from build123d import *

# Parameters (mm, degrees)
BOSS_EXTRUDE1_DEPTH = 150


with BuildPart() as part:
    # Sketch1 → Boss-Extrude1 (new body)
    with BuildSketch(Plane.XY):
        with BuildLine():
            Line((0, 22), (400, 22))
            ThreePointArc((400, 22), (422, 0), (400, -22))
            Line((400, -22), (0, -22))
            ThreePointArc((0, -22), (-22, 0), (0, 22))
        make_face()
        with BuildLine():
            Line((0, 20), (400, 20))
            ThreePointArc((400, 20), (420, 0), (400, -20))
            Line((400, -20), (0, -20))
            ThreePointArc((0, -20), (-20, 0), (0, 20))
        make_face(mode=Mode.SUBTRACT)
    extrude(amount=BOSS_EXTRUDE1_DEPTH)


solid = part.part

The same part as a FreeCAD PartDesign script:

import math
import FreeCAD as App
import Part
import Sketcher

V = App.Vector

doc = App.newDocument("Part")
body = doc.addObject("PartDesign::Body", "Body")

# Sketch on XY plane
sketch1 = body.newObject("Sketcher::SketchObject", "Sketch")
sketch1.AttachmentSupport = (doc.getObject("XY_Plane"), [""])
sketch1.MapMode = "FlatFace"
sketch1.addGeometry(Part.LineSegment(V(400, 22, 0), V(0, 22, 0)), False)
sketch1.addGeometry(Part.ArcOfCircle(Part.Circle(V(0, 0, 0), V(0, 0, 1), 22), math.radians(90), math.radians(270)), False)
sketch1.addGeometry(Part.LineSegment(V(0, -22, 0), V(400, -22, 0)), False)
sketch1.addGeometry(Part.ArcOfCircle(Part.Circle(V(400, 0, 0), V(0, 0, 1), 22), math.radians(-90), math.radians(90)), False)
sketch1.addGeometry(Part.LineSegment(V(0, 20, 0), V(400, 20, 0)), False)
sketch1.addGeometry(Part.ArcOfCircle(Part.Circle(V(400, 0, 0), V(0, 0, 1), 20), math.radians(-90), math.radians(90)), False)
sketch1.addGeometry(Part.LineSegment(V(400, -20, 0), V(0, -20, 0)), False)
sketch1.addGeometry(Part.ArcOfCircle(Part.Circle(V(0, 0, 0), V(0, 0, 1), 20), math.radians(90), math.radians(270)), False)
sketch1.addConstraint(Sketcher.Constraint("Tangent", 0, 2, 1, 1))
sketch1.addConstraint(Sketcher.Constraint("Tangent", 1, 2, 2, 1))
sketch1.addConstraint(Sketcher.Constraint("Tangent", 2, 2, 3, 1))
sketch1.addConstraint(Sketcher.Constraint("Tangent", 3, 2, 0, 1))
sketch1.addConstraint(Sketcher.Constraint("Tangent", 4, 2, 5, 2))
sketch1.addConstraint(Sketcher.Constraint("Tangent", 5, 1, 6, 1))
sketch1.addConstraint(Sketcher.Constraint("Tangent", 6, 2, 7, 2))
sketch1.addConstraint(Sketcher.Constraint("Tangent", 7, 1, 4, 1))
sketch1.addConstraint(Sketcher.Constraint("Horizontal", 0))
sketch1.addConstraint(Sketcher.Constraint("Horizontal", 2))
sketch1.addConstraint(Sketcher.Constraint("Horizontal", 4))
sketch1.addConstraint(Sketcher.Constraint("Horizontal", 6))
sketch1.addConstraint(Sketcher.Constraint("Coincident", 1, 3, -1, 1))
sketch1.addConstraint(Sketcher.Constraint("Coincident", 7, 3, -1, 1))
sketch1.addConstraint(Sketcher.Constraint("Vertical", 5, 3, 2, 2))
sketch1.addConstraint(Sketcher.Constraint("Radius", 1, 22.0))
sketch1.addConstraint(Sketcher.Constraint("Radius", 5, 20.0))
sketch1.addConstraint(Sketcher.Constraint("DistanceX", 0, 2, 0, 1, 400.0))
pad1 = body.newObject("PartDesign::Pad", "Pad")
pad1.Profile = sketch1
pad1.Length = 150

doc.recompute()
